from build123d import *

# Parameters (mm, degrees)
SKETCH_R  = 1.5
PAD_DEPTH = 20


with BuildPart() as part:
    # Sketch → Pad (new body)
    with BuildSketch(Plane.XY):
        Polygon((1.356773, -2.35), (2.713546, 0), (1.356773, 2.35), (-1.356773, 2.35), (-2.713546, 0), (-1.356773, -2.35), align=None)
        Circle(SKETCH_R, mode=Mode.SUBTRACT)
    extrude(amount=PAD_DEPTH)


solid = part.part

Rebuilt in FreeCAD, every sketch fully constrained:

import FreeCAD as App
import Part
import Sketcher
from FreeCAD import Vector
Q = App.Units.Quantity


def add_polygon(sketch, points):
    """Adds a closed chain of lines whose ends are joined by coincident constraints."""
    first, n = sketch.GeometryCount, len(points)
    for a, b in zip(points, points[1:] + points[:1]):
        sketch.addGeometry(Part.LineSegment(App.Vector(*a, 0), App.Vector(*b, 0)), False)
    for i in range(n):
        sketch.addConstraint(Sketcher.Constraint("Coincident", first + i, 2, first + (i + 1) % n, 1))

doc = App.newDocument("Part")
params = doc.addObject("Spreadsheet::Sheet", "Params")
for row, (alias, value) in enumerate([
    ("sketch1_diameter", "3 mm"),
    ("pad1_length", "20 mm"),
], start=1):
    params.set(f"A{row}", alias)
    params.set(f"B{row}", "=" + value)
    params.setAlias(f"B{row}", alias)

body = doc.addObject("PartDesign::Body", "Body")

# Sketch on XY plane
sketch1 = doc.addObject("Sketcher::SketchObject", "Sketch")
body.addObject(sketch1)
sketch1.AttachmentSupport = (doc.XY_Plane, [""])
sketch1.MapMode = "FlatFace"
add_polygon(sketch1, [(1.356773, -2.35), (2.713546, 0), (1.356773, 2.35), (-1.356773, 2.35), (-2.713546, 0), (-1.356773, -2.35)])  # lines 0-5
sketch1.addGeometry(Part.Circle(Vector(0, 0, 0), Vector(0, 0, 1), 1.5), False)  # 6
sketch1.addConstraint([
    Sketcher.Constraint("Horizontal", 2),
    Sketcher.Constraint("Horizontal", 5),
    Sketcher.Constraint("Coincident", 6, 3, -1, 1),
    Sketcher.Constraint("Symmetric", 0, 2, 3, 2, -1, 1),
    Sketcher.Constraint("Symmetric", 1, 2, 4, 2, -1, 1),
    Sketcher.Constraint("PointOnObject", 0, 2, -1),
    Sketcher.Constraint("Parallel", 0, 3),
    Sketcher.Constraint("Vertical", 2, 2, 4, 2),
    Sketcher.Constraint("Diameter", 6, 3.0),
    Sketcher.Constraint("Angle", 0, Q("60.000002 deg")),
    Sketcher.Constraint("DistanceY", 4, 2, 2, 2, 4.7),
    Sketcher.Constraint("DistanceX", 2, 2, 2, 1, 2.713546),
])
sketch1.setExpression("Constraints[14]", "Params.sketch1_diameter")
pad1 = doc.addObject("PartDesign::Pad", "Pad")
body.addObject(pad1)
pad1.Profile = sketch1
pad1.setExpression("Length", "Params.pad1_length")

doc.recompute()
